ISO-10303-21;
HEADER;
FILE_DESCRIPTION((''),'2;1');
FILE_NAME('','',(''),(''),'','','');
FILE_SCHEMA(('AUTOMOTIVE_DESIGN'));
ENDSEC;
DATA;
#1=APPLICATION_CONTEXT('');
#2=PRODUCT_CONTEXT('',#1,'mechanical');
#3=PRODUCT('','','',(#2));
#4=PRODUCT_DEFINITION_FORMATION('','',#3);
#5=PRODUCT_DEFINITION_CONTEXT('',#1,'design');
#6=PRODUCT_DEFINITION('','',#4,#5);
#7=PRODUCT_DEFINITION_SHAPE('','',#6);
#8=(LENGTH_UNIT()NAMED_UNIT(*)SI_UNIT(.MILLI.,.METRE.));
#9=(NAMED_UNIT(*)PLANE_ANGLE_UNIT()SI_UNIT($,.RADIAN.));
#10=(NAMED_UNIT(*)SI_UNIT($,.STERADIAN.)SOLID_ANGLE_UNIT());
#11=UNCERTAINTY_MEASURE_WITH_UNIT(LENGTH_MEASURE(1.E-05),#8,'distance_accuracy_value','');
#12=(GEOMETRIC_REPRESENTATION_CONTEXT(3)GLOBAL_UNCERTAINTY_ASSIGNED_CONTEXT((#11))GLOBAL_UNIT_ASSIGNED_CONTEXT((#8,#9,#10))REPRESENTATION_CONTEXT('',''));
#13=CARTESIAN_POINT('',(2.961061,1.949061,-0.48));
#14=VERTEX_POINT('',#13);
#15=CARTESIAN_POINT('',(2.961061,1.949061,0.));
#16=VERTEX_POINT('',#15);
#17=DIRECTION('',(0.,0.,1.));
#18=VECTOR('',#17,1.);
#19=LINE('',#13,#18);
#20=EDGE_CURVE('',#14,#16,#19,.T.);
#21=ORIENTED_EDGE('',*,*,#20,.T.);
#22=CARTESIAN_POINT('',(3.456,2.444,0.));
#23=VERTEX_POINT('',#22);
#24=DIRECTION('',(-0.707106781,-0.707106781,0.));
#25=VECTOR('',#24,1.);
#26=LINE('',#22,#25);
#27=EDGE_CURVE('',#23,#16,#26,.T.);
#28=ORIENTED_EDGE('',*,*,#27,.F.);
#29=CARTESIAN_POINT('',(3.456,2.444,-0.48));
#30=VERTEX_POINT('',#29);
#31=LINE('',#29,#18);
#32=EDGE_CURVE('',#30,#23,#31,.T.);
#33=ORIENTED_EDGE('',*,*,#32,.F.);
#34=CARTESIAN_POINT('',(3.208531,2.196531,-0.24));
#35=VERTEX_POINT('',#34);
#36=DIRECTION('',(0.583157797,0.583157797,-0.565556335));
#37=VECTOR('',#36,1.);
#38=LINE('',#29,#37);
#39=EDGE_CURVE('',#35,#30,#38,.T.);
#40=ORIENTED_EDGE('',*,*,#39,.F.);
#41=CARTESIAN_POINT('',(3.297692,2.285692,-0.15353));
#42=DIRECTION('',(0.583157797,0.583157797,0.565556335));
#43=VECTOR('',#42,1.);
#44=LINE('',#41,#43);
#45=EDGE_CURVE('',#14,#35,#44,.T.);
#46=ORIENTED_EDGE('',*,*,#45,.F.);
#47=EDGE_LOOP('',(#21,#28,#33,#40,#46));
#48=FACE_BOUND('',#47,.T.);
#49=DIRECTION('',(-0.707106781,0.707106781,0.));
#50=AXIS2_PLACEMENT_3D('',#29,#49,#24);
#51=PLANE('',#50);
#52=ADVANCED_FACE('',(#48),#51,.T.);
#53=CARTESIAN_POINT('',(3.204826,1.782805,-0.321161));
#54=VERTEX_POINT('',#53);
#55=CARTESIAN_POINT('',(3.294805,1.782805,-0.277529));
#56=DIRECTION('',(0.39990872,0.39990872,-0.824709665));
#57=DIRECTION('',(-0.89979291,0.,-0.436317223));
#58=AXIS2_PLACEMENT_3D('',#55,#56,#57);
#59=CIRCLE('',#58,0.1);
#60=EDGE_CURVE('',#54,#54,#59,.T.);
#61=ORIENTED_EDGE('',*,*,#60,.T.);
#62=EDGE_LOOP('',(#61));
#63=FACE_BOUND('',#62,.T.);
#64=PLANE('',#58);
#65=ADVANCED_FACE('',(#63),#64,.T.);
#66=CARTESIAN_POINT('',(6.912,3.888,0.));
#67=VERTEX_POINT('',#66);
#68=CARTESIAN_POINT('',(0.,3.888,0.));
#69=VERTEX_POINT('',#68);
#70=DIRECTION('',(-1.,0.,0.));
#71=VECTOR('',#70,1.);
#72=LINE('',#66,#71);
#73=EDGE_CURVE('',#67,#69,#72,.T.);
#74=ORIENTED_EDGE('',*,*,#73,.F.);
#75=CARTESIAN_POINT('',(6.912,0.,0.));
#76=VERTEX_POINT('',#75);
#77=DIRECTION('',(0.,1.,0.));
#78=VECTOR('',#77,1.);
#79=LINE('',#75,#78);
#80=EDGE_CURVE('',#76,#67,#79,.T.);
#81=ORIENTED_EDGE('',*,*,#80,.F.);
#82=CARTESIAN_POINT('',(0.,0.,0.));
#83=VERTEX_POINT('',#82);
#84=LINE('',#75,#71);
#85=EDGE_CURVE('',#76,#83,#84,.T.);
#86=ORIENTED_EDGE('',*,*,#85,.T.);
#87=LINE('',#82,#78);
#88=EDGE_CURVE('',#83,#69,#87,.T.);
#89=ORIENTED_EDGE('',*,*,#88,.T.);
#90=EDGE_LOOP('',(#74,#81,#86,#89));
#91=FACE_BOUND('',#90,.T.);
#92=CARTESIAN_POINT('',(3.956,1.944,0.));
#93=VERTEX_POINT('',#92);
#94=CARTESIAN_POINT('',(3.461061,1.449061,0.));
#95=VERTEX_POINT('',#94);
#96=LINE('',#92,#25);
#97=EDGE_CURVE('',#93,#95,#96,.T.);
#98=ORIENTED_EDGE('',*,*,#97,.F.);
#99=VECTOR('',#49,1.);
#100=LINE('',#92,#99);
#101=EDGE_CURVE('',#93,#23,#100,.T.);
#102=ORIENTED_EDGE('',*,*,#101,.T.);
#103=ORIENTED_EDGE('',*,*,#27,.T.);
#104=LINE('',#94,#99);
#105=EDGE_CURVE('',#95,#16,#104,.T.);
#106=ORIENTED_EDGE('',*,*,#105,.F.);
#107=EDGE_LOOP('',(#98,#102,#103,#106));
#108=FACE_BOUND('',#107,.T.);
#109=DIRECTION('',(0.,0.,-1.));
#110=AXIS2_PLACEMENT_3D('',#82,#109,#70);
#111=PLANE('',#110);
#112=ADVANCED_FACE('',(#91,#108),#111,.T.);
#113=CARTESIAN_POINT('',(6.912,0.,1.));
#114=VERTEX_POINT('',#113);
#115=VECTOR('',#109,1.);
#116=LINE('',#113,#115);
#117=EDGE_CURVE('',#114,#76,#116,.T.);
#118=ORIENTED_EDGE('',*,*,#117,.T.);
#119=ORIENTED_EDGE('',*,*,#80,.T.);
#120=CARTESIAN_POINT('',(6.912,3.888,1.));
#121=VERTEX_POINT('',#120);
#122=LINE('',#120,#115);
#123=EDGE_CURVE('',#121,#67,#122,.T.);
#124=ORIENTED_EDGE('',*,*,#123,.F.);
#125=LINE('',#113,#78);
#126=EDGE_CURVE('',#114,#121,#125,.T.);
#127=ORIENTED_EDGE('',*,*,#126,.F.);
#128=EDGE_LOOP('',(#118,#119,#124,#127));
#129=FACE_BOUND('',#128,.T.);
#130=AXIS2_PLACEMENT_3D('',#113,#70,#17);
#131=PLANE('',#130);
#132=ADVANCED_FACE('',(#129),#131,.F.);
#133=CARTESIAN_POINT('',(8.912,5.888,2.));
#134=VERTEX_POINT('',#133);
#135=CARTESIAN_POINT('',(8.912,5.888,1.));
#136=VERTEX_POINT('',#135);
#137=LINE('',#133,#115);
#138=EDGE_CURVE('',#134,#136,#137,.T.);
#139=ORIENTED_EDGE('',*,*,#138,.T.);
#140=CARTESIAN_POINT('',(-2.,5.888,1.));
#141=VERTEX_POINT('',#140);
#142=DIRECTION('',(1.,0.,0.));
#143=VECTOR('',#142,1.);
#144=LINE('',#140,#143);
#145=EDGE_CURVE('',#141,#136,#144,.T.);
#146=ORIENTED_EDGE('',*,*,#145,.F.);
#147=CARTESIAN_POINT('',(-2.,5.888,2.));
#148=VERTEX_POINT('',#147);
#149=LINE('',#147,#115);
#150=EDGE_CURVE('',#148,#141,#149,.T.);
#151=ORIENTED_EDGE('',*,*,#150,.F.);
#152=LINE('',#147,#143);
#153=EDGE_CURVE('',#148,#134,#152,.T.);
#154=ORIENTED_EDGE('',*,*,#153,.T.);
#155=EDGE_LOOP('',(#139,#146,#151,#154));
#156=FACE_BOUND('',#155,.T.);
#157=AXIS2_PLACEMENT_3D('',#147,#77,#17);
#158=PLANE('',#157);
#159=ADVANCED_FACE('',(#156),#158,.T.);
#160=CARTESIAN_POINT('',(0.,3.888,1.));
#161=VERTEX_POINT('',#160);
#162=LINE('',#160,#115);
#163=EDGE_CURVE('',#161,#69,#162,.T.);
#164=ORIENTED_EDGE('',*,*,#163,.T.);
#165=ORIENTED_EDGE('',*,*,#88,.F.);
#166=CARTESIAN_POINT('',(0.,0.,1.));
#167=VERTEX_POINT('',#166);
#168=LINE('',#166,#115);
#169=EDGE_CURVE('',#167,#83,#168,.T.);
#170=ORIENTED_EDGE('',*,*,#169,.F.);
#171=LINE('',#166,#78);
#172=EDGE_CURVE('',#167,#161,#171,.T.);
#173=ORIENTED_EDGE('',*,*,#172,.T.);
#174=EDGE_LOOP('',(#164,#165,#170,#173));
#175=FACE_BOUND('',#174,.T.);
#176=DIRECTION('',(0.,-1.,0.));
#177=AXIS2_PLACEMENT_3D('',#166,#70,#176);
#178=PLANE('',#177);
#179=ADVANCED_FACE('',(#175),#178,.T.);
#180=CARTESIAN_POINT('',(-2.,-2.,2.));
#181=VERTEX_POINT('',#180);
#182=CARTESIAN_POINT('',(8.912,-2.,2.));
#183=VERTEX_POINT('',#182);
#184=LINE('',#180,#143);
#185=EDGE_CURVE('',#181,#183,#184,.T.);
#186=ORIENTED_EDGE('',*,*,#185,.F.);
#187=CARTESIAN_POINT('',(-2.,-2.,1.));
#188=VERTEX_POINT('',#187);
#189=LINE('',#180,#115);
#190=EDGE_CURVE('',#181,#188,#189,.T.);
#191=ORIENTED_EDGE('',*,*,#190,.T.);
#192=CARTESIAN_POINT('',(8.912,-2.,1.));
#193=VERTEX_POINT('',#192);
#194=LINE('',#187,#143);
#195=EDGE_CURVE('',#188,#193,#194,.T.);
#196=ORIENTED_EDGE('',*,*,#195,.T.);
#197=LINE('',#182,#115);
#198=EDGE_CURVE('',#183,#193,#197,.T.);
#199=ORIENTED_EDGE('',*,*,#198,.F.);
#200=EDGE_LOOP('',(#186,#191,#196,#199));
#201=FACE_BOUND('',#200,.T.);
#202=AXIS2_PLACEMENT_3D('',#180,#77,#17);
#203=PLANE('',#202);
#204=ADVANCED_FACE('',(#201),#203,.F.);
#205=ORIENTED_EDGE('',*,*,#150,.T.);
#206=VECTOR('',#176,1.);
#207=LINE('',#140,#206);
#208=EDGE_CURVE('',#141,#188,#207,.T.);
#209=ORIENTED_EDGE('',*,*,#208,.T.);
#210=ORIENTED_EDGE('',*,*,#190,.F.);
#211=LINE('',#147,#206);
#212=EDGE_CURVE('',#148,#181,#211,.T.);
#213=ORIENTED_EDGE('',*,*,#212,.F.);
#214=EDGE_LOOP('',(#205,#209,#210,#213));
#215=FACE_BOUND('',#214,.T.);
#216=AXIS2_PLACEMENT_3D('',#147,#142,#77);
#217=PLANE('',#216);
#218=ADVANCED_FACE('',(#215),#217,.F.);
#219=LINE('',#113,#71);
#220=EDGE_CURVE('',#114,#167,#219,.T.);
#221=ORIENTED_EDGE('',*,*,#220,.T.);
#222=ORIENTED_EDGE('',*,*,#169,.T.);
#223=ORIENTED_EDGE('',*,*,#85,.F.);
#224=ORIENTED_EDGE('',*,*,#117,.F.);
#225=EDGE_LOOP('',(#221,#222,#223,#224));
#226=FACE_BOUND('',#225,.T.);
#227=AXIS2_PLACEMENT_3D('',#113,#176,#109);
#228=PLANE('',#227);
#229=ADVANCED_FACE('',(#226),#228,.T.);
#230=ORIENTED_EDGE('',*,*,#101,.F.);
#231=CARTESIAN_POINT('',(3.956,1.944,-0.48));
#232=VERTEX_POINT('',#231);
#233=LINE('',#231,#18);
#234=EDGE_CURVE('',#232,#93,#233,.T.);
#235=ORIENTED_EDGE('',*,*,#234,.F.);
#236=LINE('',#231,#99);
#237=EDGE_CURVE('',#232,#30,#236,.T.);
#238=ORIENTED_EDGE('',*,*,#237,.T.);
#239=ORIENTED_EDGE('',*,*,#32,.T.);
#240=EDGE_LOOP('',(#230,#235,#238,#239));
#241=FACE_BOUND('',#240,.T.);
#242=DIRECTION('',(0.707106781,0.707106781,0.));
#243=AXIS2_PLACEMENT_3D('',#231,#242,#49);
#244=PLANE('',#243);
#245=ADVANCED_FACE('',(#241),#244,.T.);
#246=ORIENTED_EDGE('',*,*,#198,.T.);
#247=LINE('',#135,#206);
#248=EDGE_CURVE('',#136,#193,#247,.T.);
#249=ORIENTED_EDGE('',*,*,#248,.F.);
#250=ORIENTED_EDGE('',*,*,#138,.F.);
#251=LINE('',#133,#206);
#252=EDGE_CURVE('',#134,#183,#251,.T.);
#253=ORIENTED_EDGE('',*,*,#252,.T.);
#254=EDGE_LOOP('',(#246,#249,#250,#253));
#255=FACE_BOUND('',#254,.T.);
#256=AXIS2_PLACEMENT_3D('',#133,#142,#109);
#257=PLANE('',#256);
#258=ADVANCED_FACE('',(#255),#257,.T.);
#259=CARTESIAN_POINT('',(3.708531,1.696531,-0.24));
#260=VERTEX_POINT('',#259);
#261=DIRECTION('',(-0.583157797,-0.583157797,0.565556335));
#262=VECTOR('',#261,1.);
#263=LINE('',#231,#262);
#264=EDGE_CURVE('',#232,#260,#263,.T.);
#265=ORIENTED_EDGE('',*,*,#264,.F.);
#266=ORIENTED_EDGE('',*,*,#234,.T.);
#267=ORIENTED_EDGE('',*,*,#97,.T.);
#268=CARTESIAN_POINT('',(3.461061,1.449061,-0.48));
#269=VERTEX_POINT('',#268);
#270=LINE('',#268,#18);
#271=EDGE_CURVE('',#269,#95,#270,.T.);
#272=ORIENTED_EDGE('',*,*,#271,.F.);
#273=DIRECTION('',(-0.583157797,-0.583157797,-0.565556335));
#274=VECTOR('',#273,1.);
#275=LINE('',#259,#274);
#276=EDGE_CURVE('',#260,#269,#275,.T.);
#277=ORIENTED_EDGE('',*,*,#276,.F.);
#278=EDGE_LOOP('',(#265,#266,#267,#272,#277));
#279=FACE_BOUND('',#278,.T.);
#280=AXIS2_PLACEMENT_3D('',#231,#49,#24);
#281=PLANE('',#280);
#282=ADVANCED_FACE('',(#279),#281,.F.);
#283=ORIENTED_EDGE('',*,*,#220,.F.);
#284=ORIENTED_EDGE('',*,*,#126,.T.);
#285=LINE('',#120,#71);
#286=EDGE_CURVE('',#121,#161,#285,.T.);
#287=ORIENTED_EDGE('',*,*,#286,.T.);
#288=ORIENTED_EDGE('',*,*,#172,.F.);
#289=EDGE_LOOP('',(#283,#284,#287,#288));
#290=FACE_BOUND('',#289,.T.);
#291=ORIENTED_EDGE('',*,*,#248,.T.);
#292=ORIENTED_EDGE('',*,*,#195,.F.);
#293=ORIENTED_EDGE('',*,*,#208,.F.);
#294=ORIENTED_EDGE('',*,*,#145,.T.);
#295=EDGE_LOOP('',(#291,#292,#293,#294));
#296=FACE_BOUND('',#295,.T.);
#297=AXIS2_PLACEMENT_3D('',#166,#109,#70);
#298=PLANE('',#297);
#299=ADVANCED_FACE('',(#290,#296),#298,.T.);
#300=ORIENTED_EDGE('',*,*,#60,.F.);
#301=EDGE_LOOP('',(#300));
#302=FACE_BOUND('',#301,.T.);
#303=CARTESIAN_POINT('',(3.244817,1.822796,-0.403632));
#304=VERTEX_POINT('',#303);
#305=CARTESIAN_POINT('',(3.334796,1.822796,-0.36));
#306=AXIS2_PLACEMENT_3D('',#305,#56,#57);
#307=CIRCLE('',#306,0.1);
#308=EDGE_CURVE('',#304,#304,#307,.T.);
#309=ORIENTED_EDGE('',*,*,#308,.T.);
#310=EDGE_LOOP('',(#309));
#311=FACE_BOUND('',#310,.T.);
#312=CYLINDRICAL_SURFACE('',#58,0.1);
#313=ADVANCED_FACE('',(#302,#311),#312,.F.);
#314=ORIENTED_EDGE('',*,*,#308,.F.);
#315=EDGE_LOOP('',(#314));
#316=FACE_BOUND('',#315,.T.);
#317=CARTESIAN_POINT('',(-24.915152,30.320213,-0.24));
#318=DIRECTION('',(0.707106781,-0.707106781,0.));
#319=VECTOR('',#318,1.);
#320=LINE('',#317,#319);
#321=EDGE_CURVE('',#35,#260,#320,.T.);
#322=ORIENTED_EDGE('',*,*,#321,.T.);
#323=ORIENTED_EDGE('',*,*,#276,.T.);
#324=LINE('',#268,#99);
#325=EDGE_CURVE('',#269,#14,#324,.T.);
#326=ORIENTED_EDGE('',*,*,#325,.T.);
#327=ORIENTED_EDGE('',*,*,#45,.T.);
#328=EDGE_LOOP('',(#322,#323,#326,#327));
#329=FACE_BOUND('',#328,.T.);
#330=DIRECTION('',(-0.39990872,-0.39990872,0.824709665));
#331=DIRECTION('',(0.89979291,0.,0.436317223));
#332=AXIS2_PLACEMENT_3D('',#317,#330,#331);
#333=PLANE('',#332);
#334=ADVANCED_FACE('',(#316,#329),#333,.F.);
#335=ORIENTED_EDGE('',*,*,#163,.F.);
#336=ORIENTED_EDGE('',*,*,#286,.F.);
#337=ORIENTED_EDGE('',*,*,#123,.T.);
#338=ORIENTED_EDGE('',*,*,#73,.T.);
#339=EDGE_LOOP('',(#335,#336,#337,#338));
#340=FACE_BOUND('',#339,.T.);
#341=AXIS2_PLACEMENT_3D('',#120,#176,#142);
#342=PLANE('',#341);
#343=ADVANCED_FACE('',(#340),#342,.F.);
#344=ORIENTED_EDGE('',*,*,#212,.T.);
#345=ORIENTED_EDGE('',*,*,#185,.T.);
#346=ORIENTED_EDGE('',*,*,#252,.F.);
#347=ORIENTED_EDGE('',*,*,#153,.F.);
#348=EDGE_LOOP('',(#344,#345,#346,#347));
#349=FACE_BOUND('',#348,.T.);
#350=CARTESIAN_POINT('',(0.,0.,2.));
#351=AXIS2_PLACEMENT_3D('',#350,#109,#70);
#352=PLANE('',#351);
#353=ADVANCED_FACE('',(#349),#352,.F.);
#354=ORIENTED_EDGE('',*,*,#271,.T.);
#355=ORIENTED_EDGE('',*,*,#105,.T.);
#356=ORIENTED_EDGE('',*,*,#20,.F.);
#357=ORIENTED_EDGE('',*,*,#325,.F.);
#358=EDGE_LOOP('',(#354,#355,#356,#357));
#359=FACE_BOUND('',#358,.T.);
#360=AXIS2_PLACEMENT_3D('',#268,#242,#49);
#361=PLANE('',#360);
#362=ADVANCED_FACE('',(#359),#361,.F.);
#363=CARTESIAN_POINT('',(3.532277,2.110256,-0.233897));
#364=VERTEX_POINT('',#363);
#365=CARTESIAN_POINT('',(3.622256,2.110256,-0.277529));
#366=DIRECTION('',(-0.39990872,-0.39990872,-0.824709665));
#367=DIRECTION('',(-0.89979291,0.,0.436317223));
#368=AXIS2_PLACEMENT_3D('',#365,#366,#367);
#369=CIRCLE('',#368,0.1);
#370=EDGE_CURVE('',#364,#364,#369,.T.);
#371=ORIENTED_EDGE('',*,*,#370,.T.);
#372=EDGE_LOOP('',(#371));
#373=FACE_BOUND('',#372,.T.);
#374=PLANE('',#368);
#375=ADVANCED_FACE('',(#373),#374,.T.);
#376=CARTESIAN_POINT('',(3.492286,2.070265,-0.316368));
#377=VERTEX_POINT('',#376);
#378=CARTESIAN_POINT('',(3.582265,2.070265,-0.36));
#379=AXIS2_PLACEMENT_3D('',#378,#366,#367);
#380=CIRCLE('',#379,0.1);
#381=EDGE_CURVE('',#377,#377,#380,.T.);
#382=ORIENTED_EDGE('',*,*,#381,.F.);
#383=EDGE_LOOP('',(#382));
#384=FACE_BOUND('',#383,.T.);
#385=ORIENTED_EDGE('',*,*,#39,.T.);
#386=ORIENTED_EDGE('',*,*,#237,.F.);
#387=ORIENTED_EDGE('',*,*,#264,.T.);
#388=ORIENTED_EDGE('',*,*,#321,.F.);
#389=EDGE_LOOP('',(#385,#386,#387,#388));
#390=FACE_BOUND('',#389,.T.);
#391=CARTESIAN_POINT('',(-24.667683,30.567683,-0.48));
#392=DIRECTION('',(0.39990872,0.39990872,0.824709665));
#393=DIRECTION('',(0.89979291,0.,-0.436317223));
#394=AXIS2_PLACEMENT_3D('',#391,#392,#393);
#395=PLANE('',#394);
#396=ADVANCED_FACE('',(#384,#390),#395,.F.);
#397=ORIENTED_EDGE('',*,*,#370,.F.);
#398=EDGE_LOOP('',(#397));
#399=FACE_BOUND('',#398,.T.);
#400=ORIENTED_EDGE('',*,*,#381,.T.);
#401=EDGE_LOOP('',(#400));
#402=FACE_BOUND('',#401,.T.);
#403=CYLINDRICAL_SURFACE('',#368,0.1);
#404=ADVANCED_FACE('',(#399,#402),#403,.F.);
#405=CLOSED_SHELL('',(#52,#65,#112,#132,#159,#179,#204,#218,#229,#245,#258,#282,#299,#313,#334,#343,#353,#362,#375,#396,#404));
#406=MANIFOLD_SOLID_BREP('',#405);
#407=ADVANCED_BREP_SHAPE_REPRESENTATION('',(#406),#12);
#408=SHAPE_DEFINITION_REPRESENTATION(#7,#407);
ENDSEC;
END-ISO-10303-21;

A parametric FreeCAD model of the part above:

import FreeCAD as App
import Part
import Sketcher

V = App.Vector
Q = App.Units.Quantity

doc = App.newDocument("Part")
body = doc.addObject("PartDesign::Body", "Body")

# Sketch on XY plane
sketch1 = body.newObject("Sketcher::SketchObject", "Sketch")
sketch1.AttachmentSupport = (doc.getObject("XY_Plane"), [""])
sketch1.MapMode = "FlatFace"
sketch1.addGeometry(Part.LineSegment(V(0, 3.888, 0), V(0, 0, 0)), False)
sketch1.addGeometry(Part.LineSegment(V(0, 0, 0), V(6.912, 0, 0)), False)
sketch1.addGeometry(Part.LineSegment(V(6.912, 0, 0), V(6.912, 3.888, 0)), False)
sketch1.addGeometry(Part.LineSegment(V(6.912, 3.888, 0), V(0, 3.888, 0)), False)
sketch1.addConstraint(Sketcher.Constraint("Coincident", 0, 2, 1, 1))
sketch1.addConstraint(Sketcher.Constraint("Coincident", 1, 2, 2, 1))
sketch1.addConstraint(Sketcher.Constraint("Coincident", 2, 2, 3, 1))
sketch1.addConstraint(Sketcher.Constraint("Coincident", 3, 2, 0, 1))
sketch1.addConstraint(Sketcher.Constraint("Vertical", 0))
sketch1.addConstraint(Sketcher.Constraint("Horizontal", 1))
sketch1.addConstraint(Sketcher.Constraint("Vertical", 2))
sketch1.addConstraint(Sketcher.Constraint("Horizontal", 3))
sketch1.addConstraint(Sketcher.Constraint("Coincident", 0, 2, -1, 1))
sketch1.addConstraint(Sketcher.Constraint("DistanceX", 1, 1, 1, 2, 6.912))
sketch1.addConstraint(Sketcher.Constraint("DistanceY", 0, 2, 0, 1, 3.888))
pad1 = body.newObject("PartDesign::Pad", "Pad")
pad1.Profile = sketch1
pad1.Length = 1

# Sketch on XY plane
sketch2 = body.newObject("Sketcher::SketchObject", "Sketch001")
sketch2.AttachmentSupport = (doc.getObject("XY_Plane"), [""])
sketch2.MapMode = "FlatFace"
sketch2.AttachmentOffset = App.Placement(V(0, 0, 1), App.Rotation())
sketch2.addGeometry(Part.LineSegment(V(-2, 5.888, 0), V(-2, -2, 0)), False)
sketch2.addGeometry(Part.LineSegment(V(-2, -2, 0), V(8.912, -2, 0)), False)
sketch2.addGeometry(Part.LineSegment(V(8.912, -2, 0), V(8.912, 5.888, 0)), False)
sketch2.addGeometry(Part.LineSegment(V(8.912, 5.888, 0), V(-2, 5.888, 0)), False)
sketch2.addConstraint(Sketcher.Constraint("Coincident", 0, 2, 1, 1))
sketch2.addConstraint(Sketcher.Constraint("Coincident", 1, 2, 2, 1))
sketch2.addConstraint(Sketcher.Constraint("Coincident", 2, 2, 3, 1))
sketch2.addConstraint(Sketcher.Constraint("Coincident", 3, 2, 0, 1))
sketch2.addConstraint(Sketcher.Constraint("Vertical", 0))
sketch2.addConstraint(Sketcher.Constraint("Horizontal", 1))
sketch2.addConstraint(Sketcher.Constraint("Vertical", 2))
sketch2.addConstraint(Sketcher.Constraint("Horizontal", 3))
sketch2.addConstraint(Sketcher.Constraint("DistanceX", 0, 2, -1, 1, 2.0))
sketch2.addConstraint(Sketcher.Constraint("DistanceY", 0, 2, -1, 1, 2.0))
sketch2.addConstraint(Sketcher.Constraint("DistanceX", 1, 1, 1, 2, 10.912))
sketch2.addConstraint(Sketcher.Constraint("DistanceY", 0, 2, 0, 1, 7.888))
pad2 = body.newObject("PartDesign::Pad", "Pad001")
pad2.Profile = sketch2
pad2.Length = 1

# Sketch on XY plane
sketch3 = body.newObject("Sketcher::SketchObject", "Sketch002")
sketch3.AttachmentSupport = (doc.getObject("XY_Plane"), [""])
sketch3.MapMode = "FlatFace"
sketch3.addGeometry(Part.LineSegment(V(3.456, 2.444, 0), V(3.956, 1.944, 0)), False)
sketch3.addGeometry(Part.LineSegment(V(3.956, 1.944, 0), V(3.461061, 1.449061, 0)), False)
sketch3.addGeometry(Part.LineSegment(V(3.461061, 1.449061, 0), V(2.961061, 1.949061, 0)), False)
sketch3.addGeometry(Part.LineSegment(V(2.961061, 1.949061, 0), V(3.456, 2.444, 0)), False)
sketch3.addConstraint(Sketcher.Constraint("Coincident", 0, 2, 1, 1))
sketch3.addConstraint(Sketcher.Constraint("Coincident", 1, 2, 2, 1))
sketch3.addConstraint(Sketcher.Constraint("Coincident", 2, 2, 3, 1))
sketch3.addConstraint(Sketcher.Constraint("Coincident", 3, 2, 0, 1))
sketch3.addConstraint(Sketcher.Constraint("Perpendicular", 0, 1))
sketch3.addConstraint(Sketcher.Constraint("Perpendicular", 1, 2))
sketch3.addConstraint(Sketcher.Constraint("Perpendicular", 2, 3))
sketch3.addConstraint(Sketcher.Constraint("Angle", 0, Q("-45 deg")))
sketch3.addConstraint(Sketcher.Constraint("DistanceX", 2, 2, 1, 2, 0.5))
sketch3.addConstraint(Sketcher.Constraint("DistanceX", -1, 1, 0, 2, 3.956))
sketch3.addConstraint(Sketcher.Constraint("DistanceY", -1, 1, 0, 2, 1.944))
sketch3.addConstraint(Sketcher.Constraint("Distance", 1, 0.699949))
pad3 = body.newObject("PartDesign::Pad", "Pad002")
pad3.Profile = sketch3
pad3.Length = 0.48
pad3.Reversed = True

# Sketch on an angled plane
sketch4 = body.newObject("Sketcher::SketchObject", "Sketch003")
sketch4.Placement = App.Placement(V(1.006, -1.006, 0), App.Rotation(V(0, 0, -1), V(0.707106781, 0.707106781, 0), V(0.707106781, -0.707106781, 0), "ZXY"))
sketch4.addGeometry(Part.LineSegment(V(0.48, 4.17193, 0), V(0.24, 3.821955, 0)), False)
sketch4.addGeometry(Part.LineSegment(V(0.24, 3.821955, 0), V(0.48, 3.471981, 0)), False)
sketch4.addGeometry(Part.LineSegment(V(0.48, 3.471981, 0), V(0.48, 4.17193, 0)), False)
sketch4.addConstraint(Sketcher.Constraint("Coincident", 0, 2, 1, 1))
sketch4.addConstraint(Sketcher.Constraint("Coincident", 1, 2, 2, 1))
sketch4.addConstraint(Sketcher.Constraint("Coincident", 2, 2, 0, 1))
sketch4.addConstraint(Sketcher.Constraint("Vertical", 2))
sketch4.addConstraint(Sketcher.Constraint("Equal", 0, 1))
sketch4.addConstraint(Sketcher.Constraint("DistanceX", -1, 1, 0, 2, 0.24))
sketch4.addConstraint(Sketcher.Constraint("DistanceX", -1, 1, 1, 2, 0.48))
sketch4.addConstraint(Sketcher.Constraint("DistanceY", 2, 1, 2, 2, 0.699949))
sketch4.addConstraint(Sketcher.Constraint("DistanceY", -1, 1, 1, 2, 3.471981))
pocket1 = body.newObject("PartDesign::Pocket", "Pocket")
pocket1.Profile = sketch4
pocket1.Length = 40.48

# Sketch on an angled plane
sketch5 = body.newObject("Sketcher::SketchObject", "Sketch004")
sketch5.Placement = App.Placement(V(0.943569, 0.943569, -1.945871), App.Rotation(V(-0.916554972, 0.174487062, -0.359835031), V(0, 0.899792911, 0.436317223), V(0.39990872, 0.39990872, -0.824709665), "ZXY"))
sketch5.addGeometry(Part.Circle(V(-2.608929, 1.483065, 0), V(0, 0, 1), 0.1), False)
sketch5.addConstraint(Sketcher.Constraint("Diameter", 0, 0.2))
sketch5.addConstraint(Sketcher.Constraint("DistanceX", 0, 3, -1, 1, 2.608929))
sketch5.addConstraint(Sketcher.Constraint("DistanceY", -1, 1, 0, 3, 1.483065))
pocket2 = body.newObject("PartDesign::Pocket", "Pocket001")
pocket2.Profile = sketch5
pocket2.Length = 0.1

# Sketch on an angled plane
sketch6 = body.newObject("Sketcher::SketchObject", "Sketch005")
sketch6.Placement = App.Placement(V(0.785261, 0.785261, 1.619401), App.Rotation(V(-0.916554972, 0.174487062, 0.359835031), V(0, 0.899792911, -0.436317223), V(-0.39990872, -0.39990872, -0.824709665), "ZXY"))
sketch6.addGeometry(Part.Circle(V(-3.051649, 2.019884, 0), V(0, 0, 1), 0.1), False)
sketch6.addConstraint(Sketcher.Constraint("Diameter", 0, 0.2))
sketch6.addConstraint(Sketcher.Constraint("DistanceX", 0, 3, -1, 1, 3.051649))
sketch6.addConstraint(Sketcher.Constraint("DistanceY", -1, 1, 0, 3, 2.019884))
pocket3 = body.newObject("PartDesign::Pocket", "Pocket002")
pocket3.Profile = sketch6
pocket3.Length = 0.1

doc.recompute()
